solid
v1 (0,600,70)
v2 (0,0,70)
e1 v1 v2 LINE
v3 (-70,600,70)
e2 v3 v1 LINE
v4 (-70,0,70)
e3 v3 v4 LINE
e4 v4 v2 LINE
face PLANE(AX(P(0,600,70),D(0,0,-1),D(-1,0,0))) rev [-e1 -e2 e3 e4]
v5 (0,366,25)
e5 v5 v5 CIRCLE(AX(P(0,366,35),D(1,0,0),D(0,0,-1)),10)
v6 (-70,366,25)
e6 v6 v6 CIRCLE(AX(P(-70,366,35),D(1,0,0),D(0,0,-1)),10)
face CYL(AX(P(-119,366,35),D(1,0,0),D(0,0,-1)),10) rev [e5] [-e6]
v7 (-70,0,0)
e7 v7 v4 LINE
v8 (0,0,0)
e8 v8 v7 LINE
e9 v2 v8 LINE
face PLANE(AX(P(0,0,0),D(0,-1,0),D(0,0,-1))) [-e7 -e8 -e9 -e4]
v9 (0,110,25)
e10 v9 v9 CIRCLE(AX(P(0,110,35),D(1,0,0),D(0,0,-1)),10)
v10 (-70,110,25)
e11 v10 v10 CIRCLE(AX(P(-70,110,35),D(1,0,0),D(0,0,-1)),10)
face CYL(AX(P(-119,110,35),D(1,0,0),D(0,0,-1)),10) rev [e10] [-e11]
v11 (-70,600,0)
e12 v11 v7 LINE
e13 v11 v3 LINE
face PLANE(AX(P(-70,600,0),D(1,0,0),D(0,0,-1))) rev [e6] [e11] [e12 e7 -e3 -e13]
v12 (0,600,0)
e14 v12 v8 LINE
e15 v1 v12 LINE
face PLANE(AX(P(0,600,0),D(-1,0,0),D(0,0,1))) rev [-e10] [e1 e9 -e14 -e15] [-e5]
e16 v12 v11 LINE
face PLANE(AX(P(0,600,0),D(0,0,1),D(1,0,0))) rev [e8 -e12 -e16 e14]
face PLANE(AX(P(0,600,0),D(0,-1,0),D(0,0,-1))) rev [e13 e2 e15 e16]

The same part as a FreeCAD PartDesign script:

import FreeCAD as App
import Part
import Sketcher
Q = App.Units.Quantity


def add_polygon(sketch, points):
    """Adds a closed chain of lines whose ends are joined by coincident constraints."""
    first, n = sketch.GeometryCount, len(points)
    for a, b in zip(points, points[1:] + points[:1]):
        sketch.addGeometry(Part.LineSegment(App.Vector(*a, 0), App.Vector(*b, 0)), False)
    for i in range(n):
        sketch.addConstraint(Sketcher.Constraint("Coincident", first + i, 2, first + (i + 1) % n, 1))

doc = App.newDocument("Part")
params = doc.addObject("Spreadsheet::Sheet", "Params")
for row, (alias, value) in enumerate([
    ("sketch1_width", "70 mm"),
    ("pad1_length", "600 mm"),
    ("sketch2_diameter", "20 mm"),
    ("pocket1_length", "119 mm"),
], start=1):
    params.set(f"A{row}", alias)
    params.set(f"B{row}", "=" + value)
    params.setAlias(f"B{row}", alias)

body = doc.addObject("PartDesign::Body", "Body")

# Sketch on XZ plane
sketch1 = body.newObject("Sketcher::SketchObject", "Sketch")
sketch1.AttachmentSupport = (doc.getObject("XZ_Plane"), [""])
sketch1.MapMode = "FlatFace"
add_polygon(sketch1, [(-70, 0), (-70, 70), (0, 70), (0, 0)])  # lines 0-3
sketch1.addConstraint([
    Sketcher.Constraint("Vertical", 0),
    Sketcher.Constraint("Horizontal", 1),
    Sketcher.Constraint("Vertical", 2),
    Sketcher.Constraint("Horizontal", 3),
    Sketcher.Constraint("Coincident", 2, 2, -1, 1),
    Sketcher.Constraint("Equal", 3, 0),
    Sketcher.Constraint("DistanceX", 1, 1, 1, 2, Q("70 mm")),
])
sketch1.setExpression("Constraints[10]", "Params.sketch1_width")
pad1 = body.newObject("PartDesign::Pad", "Pad")
pad1.Profile = sketch1
pad1.setExpression("Length", "Params.pad1_length")
pad1.Reversed = True

# Sketch on YZ plane
sketch2 = body.newObject("Sketcher::SketchObject", "Sketch001")
sketch2.AttachmentSupport = (doc.getObject("YZ_Plane"), [""])
sketch2.MapMode = "FlatFace"
sketch2.addGeometry([
    Part.Circle(App.Vector(110, 35, 0), App.Vector(0, 0, 1), 10),
    Part.Circle(App.Vector(366, 35, 0), App.Vector(0, 0, 1), 10),
], False)
sketch2.addConstraint([
    Sketcher.Constraint("Equal", 0, 1),
    Sketcher.Constraint("Horizontal", 0, 3, 1, 3),
    Sketcher.Constraint("Diameter", 0, Q("20 mm")),
    Sketcher.Constraint("DistanceX", -1, 1, 0, 3, Q("110 mm")),
    Sketcher.Constraint("DistanceY", -1, 1, 0, 3, Q("35 mm")),
    Sketcher.Constraint("DistanceX", -1, 1, 1, 3, Q("366 mm")),
])
sketch2.setExpression("Constraints[2]", "Params.sketch2_diameter")
pocket1 = body.newObject("PartDesign::Pocket", "Pocket")
pocket1.Profile = sketch2
pocket1.setExpression("Length", "Params.pocket1_length")

doc.recompute()
